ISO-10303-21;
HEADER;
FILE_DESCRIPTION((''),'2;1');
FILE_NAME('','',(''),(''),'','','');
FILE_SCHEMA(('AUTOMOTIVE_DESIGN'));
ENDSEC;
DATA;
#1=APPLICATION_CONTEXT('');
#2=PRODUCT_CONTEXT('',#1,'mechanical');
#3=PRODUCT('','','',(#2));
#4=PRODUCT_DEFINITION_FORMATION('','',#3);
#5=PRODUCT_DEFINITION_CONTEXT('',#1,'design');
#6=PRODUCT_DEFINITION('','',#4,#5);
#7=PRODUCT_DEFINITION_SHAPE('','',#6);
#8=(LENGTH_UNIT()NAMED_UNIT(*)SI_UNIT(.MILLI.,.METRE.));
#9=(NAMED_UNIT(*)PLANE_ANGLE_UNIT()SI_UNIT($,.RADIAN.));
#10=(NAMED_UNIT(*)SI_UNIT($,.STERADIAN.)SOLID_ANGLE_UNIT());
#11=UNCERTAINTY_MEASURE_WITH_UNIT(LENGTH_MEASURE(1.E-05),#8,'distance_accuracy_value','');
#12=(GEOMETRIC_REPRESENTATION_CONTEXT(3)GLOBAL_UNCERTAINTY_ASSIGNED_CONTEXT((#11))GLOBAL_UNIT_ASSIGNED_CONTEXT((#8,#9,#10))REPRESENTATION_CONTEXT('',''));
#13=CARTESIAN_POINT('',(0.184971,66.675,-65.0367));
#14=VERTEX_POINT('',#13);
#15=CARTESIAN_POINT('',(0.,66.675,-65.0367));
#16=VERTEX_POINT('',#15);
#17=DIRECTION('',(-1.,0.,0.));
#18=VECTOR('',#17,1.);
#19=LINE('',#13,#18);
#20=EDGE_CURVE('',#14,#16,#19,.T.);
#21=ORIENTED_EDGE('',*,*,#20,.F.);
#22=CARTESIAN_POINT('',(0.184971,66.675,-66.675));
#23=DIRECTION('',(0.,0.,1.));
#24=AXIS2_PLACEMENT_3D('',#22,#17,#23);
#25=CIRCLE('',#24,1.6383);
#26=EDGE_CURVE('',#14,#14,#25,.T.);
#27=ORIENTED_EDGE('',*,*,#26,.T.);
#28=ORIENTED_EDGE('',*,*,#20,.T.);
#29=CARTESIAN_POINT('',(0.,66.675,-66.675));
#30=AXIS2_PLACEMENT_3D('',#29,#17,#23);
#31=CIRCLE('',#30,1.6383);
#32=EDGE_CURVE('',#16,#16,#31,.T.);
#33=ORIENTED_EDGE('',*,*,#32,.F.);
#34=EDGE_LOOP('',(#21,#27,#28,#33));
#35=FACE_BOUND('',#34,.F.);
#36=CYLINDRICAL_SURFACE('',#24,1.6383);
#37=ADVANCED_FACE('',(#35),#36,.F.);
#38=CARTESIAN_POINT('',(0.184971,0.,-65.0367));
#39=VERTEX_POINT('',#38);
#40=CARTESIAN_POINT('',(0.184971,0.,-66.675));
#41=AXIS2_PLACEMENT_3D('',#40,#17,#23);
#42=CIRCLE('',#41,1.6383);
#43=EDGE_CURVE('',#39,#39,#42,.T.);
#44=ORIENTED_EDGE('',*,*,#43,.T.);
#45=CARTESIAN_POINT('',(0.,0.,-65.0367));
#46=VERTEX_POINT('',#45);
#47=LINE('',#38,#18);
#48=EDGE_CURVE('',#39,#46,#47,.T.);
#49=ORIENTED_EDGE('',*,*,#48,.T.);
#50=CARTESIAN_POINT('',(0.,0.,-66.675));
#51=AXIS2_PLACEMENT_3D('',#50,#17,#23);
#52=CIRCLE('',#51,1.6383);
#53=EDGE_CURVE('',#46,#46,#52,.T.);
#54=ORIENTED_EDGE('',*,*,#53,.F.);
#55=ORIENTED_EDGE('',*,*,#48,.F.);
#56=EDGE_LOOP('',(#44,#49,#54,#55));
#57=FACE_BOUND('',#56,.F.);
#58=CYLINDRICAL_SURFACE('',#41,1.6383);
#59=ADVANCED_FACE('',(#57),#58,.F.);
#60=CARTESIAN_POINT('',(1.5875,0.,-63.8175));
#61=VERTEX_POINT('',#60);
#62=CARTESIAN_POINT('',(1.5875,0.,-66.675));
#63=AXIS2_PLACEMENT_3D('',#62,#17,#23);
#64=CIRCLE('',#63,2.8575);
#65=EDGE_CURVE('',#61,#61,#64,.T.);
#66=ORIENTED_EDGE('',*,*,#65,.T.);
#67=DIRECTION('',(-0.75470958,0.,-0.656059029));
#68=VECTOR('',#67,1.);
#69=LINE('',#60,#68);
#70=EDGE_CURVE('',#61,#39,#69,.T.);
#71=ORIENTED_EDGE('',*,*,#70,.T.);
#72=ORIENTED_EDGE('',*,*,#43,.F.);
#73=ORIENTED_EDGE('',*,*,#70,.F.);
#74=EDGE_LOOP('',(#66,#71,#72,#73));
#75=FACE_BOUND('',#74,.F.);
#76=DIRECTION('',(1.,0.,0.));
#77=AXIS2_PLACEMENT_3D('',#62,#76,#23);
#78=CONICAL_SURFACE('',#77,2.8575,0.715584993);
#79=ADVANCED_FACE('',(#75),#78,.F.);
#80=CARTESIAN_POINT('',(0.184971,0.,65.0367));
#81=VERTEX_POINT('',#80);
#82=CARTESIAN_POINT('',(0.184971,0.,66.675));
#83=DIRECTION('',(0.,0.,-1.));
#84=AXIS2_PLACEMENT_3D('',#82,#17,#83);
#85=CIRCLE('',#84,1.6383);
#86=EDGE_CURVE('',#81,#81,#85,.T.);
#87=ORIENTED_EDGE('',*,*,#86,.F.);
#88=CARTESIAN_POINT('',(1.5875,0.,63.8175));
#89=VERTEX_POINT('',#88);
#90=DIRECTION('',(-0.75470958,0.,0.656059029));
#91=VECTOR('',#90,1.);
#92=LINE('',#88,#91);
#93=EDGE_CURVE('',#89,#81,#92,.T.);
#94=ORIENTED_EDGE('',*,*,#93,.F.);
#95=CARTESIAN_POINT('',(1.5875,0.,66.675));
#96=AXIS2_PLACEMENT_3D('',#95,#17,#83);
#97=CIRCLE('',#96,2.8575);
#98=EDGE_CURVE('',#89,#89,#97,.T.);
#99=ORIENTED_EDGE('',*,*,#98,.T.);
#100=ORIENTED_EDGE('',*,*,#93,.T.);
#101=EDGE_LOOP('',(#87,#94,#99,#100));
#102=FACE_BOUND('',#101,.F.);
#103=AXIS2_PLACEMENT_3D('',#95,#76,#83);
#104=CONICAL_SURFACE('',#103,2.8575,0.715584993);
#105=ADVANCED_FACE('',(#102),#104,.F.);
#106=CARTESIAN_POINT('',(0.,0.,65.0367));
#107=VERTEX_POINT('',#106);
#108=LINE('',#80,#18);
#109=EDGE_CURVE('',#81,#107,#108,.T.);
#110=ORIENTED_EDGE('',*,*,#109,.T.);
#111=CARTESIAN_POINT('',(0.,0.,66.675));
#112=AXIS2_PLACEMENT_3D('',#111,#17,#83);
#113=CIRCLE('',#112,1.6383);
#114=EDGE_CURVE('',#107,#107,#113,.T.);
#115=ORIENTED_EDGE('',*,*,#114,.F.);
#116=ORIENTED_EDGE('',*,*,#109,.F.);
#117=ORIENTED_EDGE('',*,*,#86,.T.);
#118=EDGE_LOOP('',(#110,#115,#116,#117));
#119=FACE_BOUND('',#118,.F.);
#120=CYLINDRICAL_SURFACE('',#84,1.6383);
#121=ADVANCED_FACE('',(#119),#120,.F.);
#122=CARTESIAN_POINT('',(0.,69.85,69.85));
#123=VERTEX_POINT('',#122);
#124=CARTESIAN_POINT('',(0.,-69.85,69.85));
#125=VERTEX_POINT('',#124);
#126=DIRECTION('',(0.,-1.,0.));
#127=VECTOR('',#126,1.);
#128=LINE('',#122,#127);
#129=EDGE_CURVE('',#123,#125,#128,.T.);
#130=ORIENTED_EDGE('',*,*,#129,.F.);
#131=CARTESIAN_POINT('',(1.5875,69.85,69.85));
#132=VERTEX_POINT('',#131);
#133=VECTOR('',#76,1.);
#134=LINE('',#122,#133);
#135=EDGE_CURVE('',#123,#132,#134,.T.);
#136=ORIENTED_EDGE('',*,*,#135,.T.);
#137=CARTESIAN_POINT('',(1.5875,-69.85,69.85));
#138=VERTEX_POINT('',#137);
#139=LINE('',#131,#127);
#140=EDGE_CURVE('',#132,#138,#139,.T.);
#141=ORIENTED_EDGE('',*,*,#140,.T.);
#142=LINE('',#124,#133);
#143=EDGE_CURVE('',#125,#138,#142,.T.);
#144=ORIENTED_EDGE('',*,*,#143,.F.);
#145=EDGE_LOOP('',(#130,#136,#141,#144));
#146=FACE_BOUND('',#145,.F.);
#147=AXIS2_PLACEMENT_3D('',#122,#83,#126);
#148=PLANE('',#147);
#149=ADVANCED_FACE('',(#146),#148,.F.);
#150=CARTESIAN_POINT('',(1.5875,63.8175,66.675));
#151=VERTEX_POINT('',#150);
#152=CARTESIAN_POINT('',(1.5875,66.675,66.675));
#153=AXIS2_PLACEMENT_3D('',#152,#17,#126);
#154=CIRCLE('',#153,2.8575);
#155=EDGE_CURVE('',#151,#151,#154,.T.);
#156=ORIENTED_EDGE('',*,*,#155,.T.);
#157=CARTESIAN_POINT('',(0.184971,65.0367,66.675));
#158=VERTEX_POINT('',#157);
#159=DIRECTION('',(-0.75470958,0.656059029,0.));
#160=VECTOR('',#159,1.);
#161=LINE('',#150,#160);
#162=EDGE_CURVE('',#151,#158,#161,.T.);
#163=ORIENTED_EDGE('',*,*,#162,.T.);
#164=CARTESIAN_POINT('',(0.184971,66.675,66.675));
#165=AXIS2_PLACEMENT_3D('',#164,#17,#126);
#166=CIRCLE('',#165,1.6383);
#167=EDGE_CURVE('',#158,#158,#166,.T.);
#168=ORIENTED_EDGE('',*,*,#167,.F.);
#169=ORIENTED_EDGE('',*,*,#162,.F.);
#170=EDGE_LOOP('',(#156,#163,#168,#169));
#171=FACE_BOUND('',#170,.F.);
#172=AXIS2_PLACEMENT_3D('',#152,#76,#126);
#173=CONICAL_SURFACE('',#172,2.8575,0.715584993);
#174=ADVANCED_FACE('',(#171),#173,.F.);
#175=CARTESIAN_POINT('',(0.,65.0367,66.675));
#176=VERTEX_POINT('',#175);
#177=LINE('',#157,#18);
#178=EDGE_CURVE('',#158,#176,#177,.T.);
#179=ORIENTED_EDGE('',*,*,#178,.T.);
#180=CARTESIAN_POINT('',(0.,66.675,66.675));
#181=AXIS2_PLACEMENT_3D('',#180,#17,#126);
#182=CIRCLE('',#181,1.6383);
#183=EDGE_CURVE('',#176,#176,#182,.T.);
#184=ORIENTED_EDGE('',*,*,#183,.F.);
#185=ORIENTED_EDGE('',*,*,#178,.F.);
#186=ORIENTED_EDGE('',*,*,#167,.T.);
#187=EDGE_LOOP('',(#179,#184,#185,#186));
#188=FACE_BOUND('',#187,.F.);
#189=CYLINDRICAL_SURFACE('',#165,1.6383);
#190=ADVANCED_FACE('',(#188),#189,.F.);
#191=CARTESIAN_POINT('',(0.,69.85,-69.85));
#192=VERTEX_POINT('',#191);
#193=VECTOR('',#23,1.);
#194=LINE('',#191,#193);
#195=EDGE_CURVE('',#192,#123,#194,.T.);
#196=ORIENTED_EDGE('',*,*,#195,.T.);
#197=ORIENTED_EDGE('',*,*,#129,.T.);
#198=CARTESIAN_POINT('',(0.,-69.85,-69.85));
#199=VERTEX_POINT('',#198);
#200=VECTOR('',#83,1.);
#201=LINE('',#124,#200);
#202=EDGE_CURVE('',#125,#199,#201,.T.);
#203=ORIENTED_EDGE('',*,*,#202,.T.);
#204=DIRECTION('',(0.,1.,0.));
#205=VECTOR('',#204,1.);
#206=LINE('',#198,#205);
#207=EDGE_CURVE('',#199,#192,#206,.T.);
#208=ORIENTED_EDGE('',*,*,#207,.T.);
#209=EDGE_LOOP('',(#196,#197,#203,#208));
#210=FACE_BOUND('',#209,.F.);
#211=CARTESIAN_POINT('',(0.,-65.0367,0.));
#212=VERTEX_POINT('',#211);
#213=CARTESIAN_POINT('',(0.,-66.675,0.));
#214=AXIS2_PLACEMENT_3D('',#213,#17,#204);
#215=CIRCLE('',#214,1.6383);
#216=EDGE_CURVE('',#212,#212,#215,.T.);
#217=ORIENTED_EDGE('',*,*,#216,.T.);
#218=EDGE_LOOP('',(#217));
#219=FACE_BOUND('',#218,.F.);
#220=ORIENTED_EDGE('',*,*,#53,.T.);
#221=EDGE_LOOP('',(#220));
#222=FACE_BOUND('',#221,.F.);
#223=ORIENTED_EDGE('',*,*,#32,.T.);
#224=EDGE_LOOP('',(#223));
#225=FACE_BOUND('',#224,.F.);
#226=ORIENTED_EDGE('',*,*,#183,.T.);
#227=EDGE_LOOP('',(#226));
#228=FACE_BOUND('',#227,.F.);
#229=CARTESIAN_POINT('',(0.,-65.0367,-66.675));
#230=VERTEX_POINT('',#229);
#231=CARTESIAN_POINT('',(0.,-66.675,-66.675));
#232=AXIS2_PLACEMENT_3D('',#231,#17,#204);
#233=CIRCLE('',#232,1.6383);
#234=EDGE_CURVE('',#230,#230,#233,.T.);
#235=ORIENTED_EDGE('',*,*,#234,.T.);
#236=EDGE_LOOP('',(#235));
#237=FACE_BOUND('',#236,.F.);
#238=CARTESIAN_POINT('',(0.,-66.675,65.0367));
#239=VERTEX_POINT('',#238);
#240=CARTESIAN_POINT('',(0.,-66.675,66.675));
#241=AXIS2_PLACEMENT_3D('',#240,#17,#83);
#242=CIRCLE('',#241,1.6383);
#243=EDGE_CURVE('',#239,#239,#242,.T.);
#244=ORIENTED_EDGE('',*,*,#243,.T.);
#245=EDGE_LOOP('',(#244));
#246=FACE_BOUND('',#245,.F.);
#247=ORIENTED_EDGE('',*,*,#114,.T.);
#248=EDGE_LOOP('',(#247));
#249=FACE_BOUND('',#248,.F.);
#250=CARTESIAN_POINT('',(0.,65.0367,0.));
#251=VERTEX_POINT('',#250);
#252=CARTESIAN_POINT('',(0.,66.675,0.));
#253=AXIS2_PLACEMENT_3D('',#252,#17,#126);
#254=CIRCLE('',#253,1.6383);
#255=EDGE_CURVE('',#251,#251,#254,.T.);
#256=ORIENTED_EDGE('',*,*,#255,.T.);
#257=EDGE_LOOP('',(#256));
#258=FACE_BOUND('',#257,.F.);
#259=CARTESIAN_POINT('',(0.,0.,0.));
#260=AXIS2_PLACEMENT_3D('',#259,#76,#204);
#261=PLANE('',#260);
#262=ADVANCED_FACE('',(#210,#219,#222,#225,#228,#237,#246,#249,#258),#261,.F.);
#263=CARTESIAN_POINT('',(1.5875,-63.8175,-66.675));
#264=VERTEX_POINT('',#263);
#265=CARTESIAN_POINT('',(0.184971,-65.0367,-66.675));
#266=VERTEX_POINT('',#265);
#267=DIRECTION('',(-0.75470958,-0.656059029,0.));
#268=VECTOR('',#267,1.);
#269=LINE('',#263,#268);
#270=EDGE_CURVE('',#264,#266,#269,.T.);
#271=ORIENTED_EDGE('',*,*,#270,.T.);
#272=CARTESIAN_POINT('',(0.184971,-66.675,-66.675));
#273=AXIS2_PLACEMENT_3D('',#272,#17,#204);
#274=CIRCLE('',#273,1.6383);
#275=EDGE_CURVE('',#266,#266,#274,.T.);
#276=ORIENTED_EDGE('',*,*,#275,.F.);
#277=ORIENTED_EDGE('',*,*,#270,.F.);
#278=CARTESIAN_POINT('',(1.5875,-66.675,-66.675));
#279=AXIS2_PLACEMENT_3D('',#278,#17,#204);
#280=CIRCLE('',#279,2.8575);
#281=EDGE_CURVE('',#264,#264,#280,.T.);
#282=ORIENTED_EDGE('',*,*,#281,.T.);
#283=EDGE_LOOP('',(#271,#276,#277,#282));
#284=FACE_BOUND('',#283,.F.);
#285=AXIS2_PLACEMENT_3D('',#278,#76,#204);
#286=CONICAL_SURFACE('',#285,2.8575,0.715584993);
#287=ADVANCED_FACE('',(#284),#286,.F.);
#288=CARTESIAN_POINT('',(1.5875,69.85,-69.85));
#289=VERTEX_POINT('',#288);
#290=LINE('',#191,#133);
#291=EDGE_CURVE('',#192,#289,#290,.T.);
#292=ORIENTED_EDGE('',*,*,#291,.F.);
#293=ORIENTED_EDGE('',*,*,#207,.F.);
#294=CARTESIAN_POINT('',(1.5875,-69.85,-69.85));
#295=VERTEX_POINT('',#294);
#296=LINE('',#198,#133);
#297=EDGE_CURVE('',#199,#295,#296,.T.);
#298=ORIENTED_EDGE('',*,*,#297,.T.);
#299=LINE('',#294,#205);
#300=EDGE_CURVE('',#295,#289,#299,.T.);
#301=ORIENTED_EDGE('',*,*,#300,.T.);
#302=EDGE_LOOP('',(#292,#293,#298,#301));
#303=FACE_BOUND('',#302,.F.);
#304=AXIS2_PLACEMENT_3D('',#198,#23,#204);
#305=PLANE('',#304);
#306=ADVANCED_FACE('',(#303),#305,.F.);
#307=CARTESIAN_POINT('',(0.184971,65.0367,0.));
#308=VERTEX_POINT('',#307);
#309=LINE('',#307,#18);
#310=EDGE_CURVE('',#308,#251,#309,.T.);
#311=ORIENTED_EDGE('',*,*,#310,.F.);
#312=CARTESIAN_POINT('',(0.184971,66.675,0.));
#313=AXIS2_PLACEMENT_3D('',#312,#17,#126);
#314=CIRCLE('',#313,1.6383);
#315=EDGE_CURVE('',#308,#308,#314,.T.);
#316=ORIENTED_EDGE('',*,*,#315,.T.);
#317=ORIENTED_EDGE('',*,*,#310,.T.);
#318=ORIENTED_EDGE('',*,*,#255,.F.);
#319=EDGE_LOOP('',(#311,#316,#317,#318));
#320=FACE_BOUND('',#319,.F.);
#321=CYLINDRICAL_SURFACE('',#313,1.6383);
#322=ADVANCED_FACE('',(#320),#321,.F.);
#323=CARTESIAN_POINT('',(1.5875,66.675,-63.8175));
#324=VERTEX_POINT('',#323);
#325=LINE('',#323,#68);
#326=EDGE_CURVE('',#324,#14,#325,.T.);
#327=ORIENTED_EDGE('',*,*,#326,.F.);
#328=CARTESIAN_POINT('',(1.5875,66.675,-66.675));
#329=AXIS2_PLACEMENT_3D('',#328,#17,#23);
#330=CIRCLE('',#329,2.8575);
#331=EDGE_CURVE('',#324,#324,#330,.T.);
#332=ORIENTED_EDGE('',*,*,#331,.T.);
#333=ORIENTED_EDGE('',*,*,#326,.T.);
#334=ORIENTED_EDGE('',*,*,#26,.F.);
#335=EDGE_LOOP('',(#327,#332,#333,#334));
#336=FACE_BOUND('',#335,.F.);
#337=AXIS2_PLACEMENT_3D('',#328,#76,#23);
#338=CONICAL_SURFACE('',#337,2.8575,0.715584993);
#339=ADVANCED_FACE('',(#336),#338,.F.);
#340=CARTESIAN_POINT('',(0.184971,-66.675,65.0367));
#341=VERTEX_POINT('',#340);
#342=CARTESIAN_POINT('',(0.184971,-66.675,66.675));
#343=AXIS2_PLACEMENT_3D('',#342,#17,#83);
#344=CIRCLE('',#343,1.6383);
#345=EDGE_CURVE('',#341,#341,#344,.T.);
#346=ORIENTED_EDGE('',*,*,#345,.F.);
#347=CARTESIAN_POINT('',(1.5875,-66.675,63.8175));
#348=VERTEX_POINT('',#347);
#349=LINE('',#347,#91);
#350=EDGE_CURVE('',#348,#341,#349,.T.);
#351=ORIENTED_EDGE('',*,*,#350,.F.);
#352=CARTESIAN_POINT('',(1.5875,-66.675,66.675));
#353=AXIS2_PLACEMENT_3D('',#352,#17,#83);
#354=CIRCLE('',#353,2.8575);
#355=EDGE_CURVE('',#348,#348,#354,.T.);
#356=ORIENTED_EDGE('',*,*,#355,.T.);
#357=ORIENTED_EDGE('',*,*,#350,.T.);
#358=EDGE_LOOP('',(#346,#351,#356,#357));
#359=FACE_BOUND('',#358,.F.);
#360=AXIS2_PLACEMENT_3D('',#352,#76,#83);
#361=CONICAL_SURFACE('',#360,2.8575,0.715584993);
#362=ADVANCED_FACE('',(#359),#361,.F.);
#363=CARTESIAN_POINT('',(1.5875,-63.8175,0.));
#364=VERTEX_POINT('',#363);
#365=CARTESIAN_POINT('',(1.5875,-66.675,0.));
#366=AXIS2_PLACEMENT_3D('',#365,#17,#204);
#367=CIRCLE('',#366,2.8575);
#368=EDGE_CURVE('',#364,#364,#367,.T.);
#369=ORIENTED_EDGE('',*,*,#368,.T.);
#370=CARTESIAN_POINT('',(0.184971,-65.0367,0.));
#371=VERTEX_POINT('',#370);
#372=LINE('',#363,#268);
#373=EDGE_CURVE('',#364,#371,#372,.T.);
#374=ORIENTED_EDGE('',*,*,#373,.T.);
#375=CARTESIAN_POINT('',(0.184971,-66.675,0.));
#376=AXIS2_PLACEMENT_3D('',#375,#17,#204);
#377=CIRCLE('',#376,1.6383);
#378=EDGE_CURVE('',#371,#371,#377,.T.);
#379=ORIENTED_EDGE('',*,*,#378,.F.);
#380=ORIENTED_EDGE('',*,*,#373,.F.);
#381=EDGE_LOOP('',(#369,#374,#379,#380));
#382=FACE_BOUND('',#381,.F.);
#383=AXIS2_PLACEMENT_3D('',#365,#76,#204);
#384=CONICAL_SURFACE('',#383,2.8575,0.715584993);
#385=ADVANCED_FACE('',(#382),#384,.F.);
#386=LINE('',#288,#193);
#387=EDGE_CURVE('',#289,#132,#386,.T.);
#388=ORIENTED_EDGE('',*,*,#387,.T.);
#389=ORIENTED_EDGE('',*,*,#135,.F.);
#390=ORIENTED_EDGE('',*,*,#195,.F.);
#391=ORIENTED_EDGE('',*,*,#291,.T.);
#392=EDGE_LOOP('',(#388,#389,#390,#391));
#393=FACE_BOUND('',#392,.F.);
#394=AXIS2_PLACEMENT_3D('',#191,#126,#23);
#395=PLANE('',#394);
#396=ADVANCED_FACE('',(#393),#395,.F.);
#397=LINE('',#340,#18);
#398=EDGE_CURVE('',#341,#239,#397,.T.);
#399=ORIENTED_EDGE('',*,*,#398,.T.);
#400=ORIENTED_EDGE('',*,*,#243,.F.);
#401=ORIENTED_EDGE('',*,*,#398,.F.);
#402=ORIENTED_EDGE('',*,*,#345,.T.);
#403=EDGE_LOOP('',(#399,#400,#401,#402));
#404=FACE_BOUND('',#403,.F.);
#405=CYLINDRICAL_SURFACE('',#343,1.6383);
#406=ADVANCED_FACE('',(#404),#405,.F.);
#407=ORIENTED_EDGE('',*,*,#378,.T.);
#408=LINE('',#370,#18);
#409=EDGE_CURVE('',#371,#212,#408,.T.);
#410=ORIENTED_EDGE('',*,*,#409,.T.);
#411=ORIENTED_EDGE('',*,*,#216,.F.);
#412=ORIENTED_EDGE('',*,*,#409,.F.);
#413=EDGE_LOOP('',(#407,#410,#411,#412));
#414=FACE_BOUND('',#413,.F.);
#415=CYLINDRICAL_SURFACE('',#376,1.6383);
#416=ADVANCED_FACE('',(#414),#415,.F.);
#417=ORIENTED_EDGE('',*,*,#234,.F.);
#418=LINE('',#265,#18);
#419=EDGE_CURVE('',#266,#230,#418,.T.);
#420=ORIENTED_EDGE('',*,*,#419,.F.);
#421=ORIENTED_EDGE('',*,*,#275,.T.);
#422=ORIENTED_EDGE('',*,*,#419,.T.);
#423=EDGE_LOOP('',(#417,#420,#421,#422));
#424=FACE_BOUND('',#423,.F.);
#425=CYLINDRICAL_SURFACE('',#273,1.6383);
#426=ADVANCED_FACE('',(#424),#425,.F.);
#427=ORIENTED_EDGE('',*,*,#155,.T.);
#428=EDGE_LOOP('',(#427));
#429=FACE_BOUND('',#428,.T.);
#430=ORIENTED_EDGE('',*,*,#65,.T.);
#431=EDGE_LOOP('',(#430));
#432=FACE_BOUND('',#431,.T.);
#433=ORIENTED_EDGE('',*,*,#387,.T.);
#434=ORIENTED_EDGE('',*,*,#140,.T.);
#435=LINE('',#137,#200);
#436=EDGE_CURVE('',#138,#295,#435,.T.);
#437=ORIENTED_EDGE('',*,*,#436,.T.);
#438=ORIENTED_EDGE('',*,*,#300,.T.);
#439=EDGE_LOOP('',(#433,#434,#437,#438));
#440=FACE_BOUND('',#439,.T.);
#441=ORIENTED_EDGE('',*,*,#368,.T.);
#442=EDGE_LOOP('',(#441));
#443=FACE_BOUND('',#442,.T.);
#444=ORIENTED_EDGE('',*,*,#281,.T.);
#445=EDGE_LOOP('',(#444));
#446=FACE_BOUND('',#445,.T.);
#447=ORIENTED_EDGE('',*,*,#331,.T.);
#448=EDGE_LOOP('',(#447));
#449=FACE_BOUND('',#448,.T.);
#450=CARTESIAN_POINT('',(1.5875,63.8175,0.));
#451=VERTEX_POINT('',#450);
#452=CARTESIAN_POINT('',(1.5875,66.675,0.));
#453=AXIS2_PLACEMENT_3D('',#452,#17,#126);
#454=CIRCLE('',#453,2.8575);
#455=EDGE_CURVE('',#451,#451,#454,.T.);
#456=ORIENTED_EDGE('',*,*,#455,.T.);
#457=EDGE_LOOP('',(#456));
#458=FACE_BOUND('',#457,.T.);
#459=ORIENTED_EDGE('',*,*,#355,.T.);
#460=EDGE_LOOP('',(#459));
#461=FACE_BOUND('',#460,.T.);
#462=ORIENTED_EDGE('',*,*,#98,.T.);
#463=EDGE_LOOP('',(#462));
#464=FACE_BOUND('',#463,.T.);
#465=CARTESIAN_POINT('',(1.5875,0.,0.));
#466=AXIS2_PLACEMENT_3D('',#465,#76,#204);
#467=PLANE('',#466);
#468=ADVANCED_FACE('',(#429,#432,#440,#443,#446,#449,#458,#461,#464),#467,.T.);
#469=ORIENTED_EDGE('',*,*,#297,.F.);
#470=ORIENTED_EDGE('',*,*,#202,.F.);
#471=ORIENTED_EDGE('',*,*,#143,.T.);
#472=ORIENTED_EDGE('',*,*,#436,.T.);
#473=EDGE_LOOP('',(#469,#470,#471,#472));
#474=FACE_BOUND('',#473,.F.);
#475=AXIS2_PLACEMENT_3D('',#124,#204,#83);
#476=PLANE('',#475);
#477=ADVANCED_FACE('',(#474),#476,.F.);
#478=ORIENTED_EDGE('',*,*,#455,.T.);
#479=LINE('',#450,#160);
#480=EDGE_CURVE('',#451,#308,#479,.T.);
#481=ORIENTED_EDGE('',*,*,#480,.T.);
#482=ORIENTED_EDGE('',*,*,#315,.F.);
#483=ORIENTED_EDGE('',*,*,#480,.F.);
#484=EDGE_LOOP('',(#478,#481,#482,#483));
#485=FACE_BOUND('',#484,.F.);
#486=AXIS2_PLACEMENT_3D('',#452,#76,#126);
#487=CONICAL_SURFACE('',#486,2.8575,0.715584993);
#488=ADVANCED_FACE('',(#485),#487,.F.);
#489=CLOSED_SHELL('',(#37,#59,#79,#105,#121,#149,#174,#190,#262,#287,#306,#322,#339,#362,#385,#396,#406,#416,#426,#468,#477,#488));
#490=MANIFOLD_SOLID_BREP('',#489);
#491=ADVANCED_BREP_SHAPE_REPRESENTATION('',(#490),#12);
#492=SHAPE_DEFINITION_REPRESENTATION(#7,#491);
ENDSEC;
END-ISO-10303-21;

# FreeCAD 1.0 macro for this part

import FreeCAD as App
import Part
import Sketcher

V = App.Vector
Q = App.Units.Quantity

doc = App.newDocument("Part")
body = doc.addObject("PartDesign::Body", "Body")

sketch1 = doc.addObject("Sketcher::SketchObject", "Sketch")
body.addObject(sketch1)
sketch1.AttachmentSupport = (doc.YZ_Plane, [""])
sketch1.MapMode = "FlatFace"
sketch1.addGeometry([
    Part.LineSegment(V(-70, 70, 0), V(-70, -70, 0)),
    Part.LineSegment(V(-70, -70, 0), V(70, -70, 0)),
    Part.LineSegment(V(70, -70, 0), V(70, 70, 0)),
    Part.LineSegment(V(70, 70, 0), V(-70, 70, 0)),
], False)
sketch1.addConstraint([
    Sketcher.Constraint("Coincident", 0, 2, 1, 1),
    Sketcher.Constraint("Coincident", 1, 2, 2, 1),
    Sketcher.Constraint("Coincident", 2, 2, 3, 1),
    Sketcher.Constraint("Coincident", 3, 2, 0, 1),
    Sketcher.Constraint("Vertical", 0),
    Sketcher.Constraint("Horizontal", 1),
    Sketcher.Constraint("Vertical", 2),
    Sketcher.Constraint("Horizontal", 3),
    Sketcher.Constraint("Symmetric", 0, 2, 2, 2, -1, 1),
    Sketcher.Constraint("Equal", 3, 0),
    Sketcher.Constraint("DistanceX", 1, 1, 1, 2, Q("5.5 in")),
])
pad1 = doc.addObject("PartDesign::Pad", "Pad")
body.addObject(pad1)
pad1.Profile = sketch1
pad1.Length = Q("0.0625 in")

sketch2 = doc.addObject("Sketcher::SketchObject", "Sketch001")
body.addObject(sketch2)
sketch2.AttachmentSupport = (doc.YZ_Plane, [""])
sketch2.MapMode = "FlatFace"
sketch2.AttachmentOffset = App.Placement(V(0, 0, 0.0625 * 25.4), App.Rotation())
sketch2.addGeometry([
    Part.Circle(V(-66.7, 66.7, 0), V(0, 0, 1), 1.6),
    Part.Circle(V(0, 66.7, 0), V(0, 0, 1), 1.6),
], False)
sketch2.addConstraint([
    Sketcher.Constraint("Equal", 0, 1),
    Sketcher.Constraint("PointOnObject", 1, 3, -2),
    Sketcher.Constraint("Horizontal", 0, 3, 1, 3),
    Sketcher.Constraint("Diameter", 0, Q("0.129 in")),
    Sketcher.Constraint("DistanceX", 0, 3, -1, 1, Q("2.625 in")),
    Sketcher.Constraint("DistanceY", -1, 1, 0, 3, Q("2.625 in")),
])
doc.recompute()
hole = doc.addObject("PartDesign::Hole", "Hole")
body.addObject(hole)
hole.Profile = sketch2
hole.ThreadType = "None"
hole.Diameter = Q("0.129 in")
hole.DepthType = "ThroughAll"
hole.HoleCutType = "Countersink"
hole.HoleCutDiameter = Q("0.225 in")
hole.HoleCutCountersinkAngle = 82
doc.recompute()

polarpattern = doc.addObject("PartDesign::PolarPattern", "PolarPattern")
body.addObject(polarpattern)
polarpattern.Originals = [hole]
polarpattern.Axis = (doc.X_Axis, [""])
polarpattern.Angle = 360
polarpattern.Occurrences = 4
body.Tip = polarpattern

doc.recompute()
